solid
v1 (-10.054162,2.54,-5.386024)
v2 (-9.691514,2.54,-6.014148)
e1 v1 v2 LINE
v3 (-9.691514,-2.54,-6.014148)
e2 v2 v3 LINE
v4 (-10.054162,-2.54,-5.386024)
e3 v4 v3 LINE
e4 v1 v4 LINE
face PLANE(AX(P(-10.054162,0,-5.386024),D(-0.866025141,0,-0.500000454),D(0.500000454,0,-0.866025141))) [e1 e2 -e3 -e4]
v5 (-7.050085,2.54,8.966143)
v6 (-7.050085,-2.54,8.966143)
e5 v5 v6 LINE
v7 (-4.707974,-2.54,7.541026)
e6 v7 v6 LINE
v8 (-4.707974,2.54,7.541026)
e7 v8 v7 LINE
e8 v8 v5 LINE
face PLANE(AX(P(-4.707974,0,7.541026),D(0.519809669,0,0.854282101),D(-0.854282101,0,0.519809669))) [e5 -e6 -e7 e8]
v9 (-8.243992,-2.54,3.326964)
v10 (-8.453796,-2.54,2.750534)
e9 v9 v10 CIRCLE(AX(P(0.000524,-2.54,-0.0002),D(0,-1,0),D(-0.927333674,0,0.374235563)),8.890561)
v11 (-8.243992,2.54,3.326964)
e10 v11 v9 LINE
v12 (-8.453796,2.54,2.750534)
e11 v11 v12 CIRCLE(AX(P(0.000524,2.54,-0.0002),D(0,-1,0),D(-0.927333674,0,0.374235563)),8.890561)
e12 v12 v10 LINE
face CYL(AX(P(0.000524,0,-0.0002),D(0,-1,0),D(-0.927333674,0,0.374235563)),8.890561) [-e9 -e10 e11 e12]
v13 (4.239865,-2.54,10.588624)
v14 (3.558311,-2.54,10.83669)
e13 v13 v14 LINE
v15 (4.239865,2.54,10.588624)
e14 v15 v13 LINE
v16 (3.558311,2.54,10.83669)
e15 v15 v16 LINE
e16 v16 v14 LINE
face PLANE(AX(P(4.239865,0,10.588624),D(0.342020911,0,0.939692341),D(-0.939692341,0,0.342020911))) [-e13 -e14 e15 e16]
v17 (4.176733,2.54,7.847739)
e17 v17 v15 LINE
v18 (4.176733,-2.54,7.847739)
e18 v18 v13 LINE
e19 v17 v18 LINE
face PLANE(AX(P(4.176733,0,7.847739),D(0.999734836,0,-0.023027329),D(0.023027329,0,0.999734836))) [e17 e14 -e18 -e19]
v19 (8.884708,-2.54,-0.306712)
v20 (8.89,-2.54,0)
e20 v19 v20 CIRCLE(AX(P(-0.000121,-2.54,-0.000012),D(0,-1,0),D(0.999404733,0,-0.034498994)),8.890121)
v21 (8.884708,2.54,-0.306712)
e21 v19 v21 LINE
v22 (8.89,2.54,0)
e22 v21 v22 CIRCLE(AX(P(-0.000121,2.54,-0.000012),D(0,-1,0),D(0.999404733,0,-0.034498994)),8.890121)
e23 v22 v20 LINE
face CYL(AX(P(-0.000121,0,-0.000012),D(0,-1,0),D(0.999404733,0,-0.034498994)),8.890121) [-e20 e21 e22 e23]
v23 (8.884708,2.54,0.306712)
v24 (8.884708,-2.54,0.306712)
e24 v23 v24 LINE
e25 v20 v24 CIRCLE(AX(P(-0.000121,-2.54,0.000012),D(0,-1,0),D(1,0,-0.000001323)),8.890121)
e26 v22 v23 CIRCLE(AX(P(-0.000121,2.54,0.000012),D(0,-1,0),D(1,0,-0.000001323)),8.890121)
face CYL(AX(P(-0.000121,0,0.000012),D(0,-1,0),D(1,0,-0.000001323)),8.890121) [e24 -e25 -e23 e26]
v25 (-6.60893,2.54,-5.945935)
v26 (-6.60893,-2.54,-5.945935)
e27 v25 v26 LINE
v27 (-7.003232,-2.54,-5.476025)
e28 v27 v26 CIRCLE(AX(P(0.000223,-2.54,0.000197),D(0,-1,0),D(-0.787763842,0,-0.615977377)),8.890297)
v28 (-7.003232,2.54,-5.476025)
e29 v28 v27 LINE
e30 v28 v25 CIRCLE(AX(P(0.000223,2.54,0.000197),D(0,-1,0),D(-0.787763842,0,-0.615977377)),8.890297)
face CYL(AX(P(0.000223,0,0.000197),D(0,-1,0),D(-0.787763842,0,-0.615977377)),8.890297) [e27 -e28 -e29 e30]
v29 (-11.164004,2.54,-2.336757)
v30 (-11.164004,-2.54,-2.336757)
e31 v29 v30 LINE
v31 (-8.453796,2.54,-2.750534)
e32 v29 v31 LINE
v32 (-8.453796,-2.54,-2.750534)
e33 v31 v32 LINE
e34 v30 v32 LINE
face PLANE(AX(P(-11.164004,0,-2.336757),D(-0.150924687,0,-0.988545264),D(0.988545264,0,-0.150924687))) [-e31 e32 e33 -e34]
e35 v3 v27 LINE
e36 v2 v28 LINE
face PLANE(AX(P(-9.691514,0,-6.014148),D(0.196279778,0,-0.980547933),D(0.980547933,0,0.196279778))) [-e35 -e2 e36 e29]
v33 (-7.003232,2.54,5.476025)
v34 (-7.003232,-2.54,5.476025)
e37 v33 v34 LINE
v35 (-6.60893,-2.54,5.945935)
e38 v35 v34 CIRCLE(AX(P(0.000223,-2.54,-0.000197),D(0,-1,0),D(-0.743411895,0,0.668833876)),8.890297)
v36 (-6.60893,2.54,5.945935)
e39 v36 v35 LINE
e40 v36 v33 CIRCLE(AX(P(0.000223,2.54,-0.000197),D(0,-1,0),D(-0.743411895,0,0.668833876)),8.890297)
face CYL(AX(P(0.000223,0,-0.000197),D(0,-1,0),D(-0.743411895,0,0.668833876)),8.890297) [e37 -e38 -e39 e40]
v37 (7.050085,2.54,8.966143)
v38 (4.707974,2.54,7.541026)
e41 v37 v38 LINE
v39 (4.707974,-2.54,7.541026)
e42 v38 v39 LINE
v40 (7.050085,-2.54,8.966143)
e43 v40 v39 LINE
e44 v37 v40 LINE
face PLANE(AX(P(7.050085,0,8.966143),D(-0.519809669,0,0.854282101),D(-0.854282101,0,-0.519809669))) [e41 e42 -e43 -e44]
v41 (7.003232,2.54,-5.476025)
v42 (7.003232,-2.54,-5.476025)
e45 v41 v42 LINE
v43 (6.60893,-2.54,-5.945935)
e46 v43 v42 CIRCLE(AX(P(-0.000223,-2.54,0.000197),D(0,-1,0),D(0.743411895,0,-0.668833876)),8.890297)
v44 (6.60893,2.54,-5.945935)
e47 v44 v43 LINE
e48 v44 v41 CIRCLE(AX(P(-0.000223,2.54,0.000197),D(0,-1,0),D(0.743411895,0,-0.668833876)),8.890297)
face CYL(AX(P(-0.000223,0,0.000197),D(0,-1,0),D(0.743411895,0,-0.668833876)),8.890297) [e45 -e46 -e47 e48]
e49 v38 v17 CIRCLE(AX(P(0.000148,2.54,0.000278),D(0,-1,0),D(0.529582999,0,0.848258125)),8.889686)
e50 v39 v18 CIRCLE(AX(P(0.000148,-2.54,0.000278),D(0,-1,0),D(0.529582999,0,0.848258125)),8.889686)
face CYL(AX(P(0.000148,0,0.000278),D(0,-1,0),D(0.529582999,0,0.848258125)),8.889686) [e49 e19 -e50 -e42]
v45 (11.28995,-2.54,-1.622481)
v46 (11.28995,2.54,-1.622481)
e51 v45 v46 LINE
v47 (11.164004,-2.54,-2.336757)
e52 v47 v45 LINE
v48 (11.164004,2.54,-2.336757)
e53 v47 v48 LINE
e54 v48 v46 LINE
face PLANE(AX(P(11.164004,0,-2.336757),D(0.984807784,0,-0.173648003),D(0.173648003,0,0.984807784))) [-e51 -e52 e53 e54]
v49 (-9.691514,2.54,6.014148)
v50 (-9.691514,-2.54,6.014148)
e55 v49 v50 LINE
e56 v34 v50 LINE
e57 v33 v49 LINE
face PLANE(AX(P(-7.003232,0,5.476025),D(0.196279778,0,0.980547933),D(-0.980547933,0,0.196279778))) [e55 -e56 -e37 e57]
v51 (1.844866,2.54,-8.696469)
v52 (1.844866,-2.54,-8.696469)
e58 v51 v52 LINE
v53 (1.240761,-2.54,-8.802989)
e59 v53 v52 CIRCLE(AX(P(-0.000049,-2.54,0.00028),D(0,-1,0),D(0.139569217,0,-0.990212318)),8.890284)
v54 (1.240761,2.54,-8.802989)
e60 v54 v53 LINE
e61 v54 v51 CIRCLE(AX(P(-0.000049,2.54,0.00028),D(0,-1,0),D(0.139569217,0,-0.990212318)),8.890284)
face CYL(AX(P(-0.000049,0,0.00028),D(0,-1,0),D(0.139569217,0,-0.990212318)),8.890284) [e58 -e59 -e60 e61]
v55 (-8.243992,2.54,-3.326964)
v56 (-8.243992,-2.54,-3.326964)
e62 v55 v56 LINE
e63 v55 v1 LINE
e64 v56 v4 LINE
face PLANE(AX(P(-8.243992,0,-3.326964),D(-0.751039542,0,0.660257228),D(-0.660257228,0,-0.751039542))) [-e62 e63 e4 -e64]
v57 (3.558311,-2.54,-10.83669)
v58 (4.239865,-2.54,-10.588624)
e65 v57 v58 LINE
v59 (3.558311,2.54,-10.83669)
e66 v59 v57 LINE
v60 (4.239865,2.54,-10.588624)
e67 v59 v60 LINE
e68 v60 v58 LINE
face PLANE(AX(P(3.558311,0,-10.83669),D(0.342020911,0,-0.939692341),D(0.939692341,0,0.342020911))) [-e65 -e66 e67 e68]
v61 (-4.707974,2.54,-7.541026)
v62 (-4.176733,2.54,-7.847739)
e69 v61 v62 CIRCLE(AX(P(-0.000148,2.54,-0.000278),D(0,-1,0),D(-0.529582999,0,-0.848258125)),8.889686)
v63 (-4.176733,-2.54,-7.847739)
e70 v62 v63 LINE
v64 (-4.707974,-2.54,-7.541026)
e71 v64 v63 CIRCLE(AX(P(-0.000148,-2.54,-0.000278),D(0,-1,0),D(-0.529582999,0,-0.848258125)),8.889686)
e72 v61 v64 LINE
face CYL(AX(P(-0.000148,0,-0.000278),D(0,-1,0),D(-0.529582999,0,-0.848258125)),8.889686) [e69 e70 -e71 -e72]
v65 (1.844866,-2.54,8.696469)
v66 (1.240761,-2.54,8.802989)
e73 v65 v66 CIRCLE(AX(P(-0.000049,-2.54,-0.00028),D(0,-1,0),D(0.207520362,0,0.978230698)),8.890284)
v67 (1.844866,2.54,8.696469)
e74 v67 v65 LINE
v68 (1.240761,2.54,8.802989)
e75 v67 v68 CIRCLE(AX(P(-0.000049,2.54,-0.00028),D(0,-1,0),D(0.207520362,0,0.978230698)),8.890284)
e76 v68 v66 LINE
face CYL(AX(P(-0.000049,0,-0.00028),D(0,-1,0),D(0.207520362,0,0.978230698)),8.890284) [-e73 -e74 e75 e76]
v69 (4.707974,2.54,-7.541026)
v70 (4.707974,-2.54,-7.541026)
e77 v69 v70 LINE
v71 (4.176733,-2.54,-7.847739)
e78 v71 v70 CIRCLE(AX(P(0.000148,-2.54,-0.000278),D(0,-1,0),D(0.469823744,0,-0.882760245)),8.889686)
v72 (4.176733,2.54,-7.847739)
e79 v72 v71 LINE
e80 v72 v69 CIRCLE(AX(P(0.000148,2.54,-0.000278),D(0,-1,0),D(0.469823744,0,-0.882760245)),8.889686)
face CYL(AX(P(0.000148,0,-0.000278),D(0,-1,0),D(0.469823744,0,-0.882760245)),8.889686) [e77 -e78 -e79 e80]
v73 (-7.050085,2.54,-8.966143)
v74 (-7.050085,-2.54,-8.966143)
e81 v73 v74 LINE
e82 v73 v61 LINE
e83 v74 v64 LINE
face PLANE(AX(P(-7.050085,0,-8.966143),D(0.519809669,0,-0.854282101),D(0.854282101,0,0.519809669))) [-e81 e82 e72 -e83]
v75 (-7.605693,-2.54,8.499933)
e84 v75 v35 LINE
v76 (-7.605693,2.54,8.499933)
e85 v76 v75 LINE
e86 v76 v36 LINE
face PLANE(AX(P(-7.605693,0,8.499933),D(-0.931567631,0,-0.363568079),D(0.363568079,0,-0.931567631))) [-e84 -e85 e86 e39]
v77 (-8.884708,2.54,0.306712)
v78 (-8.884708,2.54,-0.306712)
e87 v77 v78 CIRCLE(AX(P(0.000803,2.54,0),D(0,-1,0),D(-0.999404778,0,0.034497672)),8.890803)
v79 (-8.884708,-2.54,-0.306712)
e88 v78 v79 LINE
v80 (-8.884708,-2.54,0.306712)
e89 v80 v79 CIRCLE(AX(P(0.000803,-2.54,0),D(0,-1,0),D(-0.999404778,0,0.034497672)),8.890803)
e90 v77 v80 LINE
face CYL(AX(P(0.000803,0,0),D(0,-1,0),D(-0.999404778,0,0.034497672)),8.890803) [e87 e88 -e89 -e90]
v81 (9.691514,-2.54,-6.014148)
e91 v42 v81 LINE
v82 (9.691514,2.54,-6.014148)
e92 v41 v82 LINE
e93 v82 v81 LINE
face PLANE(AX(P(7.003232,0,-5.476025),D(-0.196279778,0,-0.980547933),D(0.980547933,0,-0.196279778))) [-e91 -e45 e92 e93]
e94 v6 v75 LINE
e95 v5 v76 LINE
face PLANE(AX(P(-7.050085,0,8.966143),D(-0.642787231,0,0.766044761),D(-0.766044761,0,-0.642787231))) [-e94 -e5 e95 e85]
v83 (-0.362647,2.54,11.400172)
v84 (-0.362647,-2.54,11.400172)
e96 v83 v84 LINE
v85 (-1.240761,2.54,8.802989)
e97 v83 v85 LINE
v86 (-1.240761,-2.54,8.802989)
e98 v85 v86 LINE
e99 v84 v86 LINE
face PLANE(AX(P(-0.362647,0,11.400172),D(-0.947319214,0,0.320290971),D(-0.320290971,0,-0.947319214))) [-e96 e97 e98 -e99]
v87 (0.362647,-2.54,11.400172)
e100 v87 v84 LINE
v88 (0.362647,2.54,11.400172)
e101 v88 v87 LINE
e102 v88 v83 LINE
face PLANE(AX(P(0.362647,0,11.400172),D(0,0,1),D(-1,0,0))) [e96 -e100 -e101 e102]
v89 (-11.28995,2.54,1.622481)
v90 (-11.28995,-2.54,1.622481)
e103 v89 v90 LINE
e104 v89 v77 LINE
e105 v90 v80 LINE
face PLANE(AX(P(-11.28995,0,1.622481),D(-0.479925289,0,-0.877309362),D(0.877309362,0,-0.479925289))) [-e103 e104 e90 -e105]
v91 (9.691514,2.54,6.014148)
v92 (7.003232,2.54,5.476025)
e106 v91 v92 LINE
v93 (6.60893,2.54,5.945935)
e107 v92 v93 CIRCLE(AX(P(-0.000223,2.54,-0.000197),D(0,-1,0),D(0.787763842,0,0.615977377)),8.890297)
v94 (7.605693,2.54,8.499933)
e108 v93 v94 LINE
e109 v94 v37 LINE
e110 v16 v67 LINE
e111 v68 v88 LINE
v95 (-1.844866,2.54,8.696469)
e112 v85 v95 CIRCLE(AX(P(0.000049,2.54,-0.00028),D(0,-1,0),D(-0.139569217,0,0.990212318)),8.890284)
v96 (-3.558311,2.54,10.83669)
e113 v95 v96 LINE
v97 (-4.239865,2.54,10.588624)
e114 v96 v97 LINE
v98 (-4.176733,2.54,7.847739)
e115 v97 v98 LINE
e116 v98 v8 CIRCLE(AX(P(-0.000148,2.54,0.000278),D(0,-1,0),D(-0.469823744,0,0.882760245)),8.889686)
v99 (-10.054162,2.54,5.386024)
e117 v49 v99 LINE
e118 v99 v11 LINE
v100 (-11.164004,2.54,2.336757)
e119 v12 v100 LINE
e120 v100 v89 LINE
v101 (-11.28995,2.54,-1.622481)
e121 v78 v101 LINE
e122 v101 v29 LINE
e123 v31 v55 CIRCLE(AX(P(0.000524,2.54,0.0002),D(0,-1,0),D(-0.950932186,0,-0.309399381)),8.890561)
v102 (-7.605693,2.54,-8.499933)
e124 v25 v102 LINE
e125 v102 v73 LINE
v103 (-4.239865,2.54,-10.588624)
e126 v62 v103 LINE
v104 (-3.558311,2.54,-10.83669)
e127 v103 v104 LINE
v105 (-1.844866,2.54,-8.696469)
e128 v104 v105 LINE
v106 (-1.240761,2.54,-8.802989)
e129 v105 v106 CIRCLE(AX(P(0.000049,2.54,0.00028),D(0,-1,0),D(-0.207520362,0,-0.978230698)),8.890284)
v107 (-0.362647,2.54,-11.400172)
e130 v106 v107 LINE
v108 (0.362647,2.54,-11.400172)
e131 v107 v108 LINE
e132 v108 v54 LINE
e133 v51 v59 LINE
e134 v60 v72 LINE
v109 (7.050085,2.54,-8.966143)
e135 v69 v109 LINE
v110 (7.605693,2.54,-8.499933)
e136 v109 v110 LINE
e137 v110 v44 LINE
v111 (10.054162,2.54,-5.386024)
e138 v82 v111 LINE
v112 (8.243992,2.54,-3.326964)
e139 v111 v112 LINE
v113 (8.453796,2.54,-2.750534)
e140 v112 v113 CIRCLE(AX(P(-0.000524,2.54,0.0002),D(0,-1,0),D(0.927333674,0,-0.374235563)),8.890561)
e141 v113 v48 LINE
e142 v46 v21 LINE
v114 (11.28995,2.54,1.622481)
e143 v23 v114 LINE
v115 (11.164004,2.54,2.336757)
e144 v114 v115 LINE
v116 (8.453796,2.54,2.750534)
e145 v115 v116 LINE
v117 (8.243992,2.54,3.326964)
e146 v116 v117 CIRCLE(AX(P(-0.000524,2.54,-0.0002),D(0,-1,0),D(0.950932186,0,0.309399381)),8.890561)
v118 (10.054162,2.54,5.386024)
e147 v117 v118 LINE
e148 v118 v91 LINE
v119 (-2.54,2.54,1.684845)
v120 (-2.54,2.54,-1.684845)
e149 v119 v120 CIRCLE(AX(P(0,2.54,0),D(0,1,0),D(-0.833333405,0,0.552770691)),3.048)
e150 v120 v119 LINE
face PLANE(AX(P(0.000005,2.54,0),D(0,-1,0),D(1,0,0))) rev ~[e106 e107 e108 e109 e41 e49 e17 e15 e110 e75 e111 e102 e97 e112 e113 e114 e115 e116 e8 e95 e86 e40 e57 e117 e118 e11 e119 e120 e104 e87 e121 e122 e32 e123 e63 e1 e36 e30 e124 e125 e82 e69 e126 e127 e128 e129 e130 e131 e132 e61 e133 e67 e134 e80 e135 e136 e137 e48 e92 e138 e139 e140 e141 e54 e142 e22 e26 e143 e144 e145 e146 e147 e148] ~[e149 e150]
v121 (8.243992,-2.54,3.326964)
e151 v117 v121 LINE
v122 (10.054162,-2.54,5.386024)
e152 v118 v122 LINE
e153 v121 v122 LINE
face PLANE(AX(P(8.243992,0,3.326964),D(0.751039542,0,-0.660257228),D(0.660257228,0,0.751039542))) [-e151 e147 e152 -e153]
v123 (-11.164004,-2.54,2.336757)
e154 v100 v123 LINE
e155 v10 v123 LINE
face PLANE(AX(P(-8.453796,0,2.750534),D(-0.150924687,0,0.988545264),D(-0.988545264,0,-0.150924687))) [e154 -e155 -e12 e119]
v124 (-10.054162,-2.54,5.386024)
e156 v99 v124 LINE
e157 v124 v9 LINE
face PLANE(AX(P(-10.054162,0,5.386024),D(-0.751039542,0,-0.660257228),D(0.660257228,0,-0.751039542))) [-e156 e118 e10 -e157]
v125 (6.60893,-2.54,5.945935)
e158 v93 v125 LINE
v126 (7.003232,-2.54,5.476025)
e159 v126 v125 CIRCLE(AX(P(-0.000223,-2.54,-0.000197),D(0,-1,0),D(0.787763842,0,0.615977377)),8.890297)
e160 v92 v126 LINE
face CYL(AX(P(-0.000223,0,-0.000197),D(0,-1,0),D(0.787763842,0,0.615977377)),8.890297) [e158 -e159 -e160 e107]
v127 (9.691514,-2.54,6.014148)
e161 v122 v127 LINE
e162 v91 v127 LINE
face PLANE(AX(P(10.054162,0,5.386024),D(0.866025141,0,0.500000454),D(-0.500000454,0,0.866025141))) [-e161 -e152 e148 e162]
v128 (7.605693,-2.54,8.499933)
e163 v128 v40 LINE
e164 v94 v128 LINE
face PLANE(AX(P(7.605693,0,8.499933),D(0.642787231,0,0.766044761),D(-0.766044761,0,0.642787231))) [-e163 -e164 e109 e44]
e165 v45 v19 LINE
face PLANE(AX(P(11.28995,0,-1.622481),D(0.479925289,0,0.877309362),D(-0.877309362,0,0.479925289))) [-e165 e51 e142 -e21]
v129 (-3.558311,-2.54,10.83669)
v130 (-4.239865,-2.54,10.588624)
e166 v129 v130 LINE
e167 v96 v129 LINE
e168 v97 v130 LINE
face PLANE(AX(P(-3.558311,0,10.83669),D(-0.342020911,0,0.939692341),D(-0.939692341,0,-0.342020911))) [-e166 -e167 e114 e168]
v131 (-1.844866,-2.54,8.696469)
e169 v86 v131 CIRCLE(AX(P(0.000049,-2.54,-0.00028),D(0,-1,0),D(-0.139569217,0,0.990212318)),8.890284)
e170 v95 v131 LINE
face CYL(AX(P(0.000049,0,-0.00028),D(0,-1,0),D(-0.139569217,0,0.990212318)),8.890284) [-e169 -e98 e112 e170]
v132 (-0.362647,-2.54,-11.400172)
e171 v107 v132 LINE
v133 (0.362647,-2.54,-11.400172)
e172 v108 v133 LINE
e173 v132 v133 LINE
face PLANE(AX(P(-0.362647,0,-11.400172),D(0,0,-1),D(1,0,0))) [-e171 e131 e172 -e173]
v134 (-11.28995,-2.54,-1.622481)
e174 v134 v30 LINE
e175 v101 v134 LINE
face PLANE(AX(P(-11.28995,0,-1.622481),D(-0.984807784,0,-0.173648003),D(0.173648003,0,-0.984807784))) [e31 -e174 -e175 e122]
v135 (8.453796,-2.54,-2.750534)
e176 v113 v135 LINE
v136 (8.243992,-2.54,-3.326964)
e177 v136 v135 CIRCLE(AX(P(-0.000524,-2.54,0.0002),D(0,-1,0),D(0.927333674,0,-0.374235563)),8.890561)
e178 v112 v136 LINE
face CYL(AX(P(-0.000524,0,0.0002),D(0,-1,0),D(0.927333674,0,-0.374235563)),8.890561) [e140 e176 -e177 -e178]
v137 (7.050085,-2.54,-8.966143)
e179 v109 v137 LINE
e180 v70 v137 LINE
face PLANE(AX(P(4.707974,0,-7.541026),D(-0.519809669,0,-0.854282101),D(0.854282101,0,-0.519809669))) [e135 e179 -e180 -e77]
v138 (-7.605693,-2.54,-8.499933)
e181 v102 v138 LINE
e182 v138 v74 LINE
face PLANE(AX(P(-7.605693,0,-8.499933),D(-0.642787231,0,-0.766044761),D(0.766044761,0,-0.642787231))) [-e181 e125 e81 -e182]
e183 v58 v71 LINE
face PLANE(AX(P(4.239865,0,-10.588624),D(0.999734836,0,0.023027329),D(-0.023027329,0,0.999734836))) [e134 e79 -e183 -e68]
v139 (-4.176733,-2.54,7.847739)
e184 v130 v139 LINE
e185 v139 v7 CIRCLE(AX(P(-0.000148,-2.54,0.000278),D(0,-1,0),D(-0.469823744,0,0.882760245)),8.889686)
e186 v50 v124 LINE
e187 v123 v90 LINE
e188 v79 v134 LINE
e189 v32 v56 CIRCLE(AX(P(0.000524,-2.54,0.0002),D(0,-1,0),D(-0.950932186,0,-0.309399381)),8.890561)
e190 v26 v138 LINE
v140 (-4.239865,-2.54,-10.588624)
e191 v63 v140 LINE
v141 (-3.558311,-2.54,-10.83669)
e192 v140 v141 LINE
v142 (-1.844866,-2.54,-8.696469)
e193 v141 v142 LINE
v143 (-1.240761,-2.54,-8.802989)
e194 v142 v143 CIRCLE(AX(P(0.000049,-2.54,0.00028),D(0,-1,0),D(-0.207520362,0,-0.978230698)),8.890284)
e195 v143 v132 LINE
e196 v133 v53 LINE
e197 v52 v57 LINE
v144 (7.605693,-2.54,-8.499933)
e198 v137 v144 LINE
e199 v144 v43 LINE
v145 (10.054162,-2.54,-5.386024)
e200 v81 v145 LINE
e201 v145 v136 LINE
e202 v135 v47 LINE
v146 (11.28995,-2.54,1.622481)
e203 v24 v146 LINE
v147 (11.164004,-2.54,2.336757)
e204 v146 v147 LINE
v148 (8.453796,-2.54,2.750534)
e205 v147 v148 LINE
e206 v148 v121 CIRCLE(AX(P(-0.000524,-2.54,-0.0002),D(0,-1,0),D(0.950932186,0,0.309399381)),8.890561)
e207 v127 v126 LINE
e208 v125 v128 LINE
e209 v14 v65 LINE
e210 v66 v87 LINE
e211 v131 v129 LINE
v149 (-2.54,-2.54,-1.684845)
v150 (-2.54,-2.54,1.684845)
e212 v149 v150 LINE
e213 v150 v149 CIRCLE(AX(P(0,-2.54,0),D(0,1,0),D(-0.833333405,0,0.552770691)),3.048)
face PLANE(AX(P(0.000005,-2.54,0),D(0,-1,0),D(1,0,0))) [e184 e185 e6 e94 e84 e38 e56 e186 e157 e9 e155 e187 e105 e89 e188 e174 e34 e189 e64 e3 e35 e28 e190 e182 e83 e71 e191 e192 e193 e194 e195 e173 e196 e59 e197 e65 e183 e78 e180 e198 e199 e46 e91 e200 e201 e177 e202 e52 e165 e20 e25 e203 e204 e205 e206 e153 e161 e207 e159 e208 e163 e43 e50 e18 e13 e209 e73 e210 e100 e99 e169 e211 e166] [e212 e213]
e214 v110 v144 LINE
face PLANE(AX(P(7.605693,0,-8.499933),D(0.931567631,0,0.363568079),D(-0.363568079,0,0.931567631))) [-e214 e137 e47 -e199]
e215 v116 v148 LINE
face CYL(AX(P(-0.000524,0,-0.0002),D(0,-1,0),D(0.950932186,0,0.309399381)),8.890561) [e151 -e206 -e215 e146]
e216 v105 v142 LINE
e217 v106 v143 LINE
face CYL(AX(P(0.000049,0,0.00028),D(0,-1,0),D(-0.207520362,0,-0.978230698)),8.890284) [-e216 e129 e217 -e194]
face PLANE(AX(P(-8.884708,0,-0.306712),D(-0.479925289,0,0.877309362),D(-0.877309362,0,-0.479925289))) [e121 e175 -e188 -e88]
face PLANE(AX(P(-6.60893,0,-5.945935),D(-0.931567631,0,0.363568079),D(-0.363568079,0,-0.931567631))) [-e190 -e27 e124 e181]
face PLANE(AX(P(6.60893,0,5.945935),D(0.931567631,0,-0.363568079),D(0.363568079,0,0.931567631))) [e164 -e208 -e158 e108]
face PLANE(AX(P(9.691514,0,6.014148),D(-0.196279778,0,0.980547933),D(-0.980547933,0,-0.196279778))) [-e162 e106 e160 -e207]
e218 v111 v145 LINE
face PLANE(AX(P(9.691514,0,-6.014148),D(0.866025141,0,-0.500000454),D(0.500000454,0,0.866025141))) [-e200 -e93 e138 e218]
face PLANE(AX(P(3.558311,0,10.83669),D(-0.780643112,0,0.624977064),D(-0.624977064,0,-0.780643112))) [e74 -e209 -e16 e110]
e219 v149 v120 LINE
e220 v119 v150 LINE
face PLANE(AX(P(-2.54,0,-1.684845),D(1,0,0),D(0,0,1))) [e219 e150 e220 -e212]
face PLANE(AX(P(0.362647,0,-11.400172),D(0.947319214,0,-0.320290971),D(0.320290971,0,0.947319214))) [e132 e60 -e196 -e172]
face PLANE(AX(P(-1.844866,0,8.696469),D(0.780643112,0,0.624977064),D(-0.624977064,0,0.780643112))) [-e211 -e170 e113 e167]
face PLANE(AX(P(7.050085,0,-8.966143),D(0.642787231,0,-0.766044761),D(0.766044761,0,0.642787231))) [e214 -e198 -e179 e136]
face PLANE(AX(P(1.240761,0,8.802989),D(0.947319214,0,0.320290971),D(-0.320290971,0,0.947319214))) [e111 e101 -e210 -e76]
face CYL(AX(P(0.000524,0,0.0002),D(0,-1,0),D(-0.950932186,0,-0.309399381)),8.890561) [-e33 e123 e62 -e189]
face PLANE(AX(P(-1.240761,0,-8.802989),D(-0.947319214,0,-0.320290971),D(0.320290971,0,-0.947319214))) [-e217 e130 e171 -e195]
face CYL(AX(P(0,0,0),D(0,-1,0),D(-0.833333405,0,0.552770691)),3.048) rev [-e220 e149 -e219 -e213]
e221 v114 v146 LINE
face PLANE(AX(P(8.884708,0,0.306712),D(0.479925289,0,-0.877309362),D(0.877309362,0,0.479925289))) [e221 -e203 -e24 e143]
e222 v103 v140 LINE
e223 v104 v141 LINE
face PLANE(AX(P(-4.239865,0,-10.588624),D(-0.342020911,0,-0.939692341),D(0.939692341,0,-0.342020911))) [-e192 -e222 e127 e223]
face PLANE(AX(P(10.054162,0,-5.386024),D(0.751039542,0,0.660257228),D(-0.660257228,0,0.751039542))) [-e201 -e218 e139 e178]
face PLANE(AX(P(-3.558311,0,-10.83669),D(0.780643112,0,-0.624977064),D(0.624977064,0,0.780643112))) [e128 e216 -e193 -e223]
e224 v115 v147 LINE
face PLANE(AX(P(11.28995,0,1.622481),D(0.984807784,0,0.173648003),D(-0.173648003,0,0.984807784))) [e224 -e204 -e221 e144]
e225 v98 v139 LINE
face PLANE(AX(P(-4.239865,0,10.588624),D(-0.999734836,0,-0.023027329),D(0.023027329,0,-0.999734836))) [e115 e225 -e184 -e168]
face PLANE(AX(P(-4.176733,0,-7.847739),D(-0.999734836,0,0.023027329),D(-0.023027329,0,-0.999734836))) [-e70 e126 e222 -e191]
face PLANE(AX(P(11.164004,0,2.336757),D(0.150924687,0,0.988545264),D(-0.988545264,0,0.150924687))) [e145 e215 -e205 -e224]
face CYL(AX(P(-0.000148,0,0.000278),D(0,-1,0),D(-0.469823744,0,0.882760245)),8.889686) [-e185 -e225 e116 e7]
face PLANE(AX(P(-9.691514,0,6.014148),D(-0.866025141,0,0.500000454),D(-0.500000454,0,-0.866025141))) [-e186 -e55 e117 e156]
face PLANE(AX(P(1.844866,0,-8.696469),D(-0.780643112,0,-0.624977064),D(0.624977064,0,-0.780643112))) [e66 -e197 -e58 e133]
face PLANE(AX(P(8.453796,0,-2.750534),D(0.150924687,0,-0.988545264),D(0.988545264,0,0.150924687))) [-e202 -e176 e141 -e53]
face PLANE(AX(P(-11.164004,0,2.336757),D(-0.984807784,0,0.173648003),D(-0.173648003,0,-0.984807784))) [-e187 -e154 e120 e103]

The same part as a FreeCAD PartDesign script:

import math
import FreeCAD as App
import Part
import Sketcher
Q = App.Units.Quantity

doc = App.newDocument("Part")
body = doc.addObject("PartDesign::Body", "Body")

sketch1 = body.newObject("Sketcher::SketchObject", "Sketch")
sketch1.AttachmentSupport = (doc.getObject("XZ_Plane"), [""])
sketch1.MapMode = "FlatFace"
sketch1.addGeometry(Part.ArcOfCircle(Part.Circle(App.Vector(-0.000121, -0.000012, 0), App.Vector(0, 0, 1), 8.890121), math.radians(-1.977039), math.radians(0.000076)), False)
sketch1.addGeometry(Part.ArcOfCircle(Part.Circle(App.Vector(-0.000121, 0.000012, 0), App.Vector(0, 0, 1), 8.890121), math.radians(-0.000076), math.radians(1.977039)), False)
sketch1.addGeometry(Part.LineSegment(App.Vector(8.884708, 0.306712, 0), App.Vector(11.28995, 1.622481, 0)), False)
sketch1.addGeometry(Part.LineSegment(App.Vector(11.28995, 1.622481, 0), App.Vector(11.164004, 2.336757, 0)), False)
sketch1.addGeometry(Part.LineSegment(App.Vector(11.164004, 2.336757, 0), App.Vector(8.453796, 2.750534, 0)), False)
sketch1.addGeometry(Part.ArcOfCircle(Part.Circle(App.Vector(-0.000524, -0.0002, 0), App.Vector(0, 0, 1), 8.890561), math.radians(18.023038), math.radians(21.977074)), False)
sketch1.addGeometry(Part.LineSegment(App.Vector(8.243992, 3.326964, 0), App.Vector(10.054162, 5.386024, 0)), False)
sketch1.addGeometry(Part.LineSegment(App.Vector(10.054162, 5.386024, 0), App.Vector(9.691514, 6.014148, 0)), False)
sketch1.addGeometry(Part.LineSegment(App.Vector(9.691514, 6.014148, 0), App.Vector(7.003232, 5.476025, 0)), False)
sketch1.addGeometry(Part.ArcOfCircle(Part.Circle(App.Vector(-0.000223, -0.000197, 0), App.Vector(0, 0, 1), 8.890297), math.radians(38.022973), math.radians(41.977126)), False)
sketch1.addGeometry(Part.LineSegment(App.Vector(6.60893, 5.945935, 0), App.Vector(7.605693, 8.499933, 0)), False)
sketch1.addGeometry(Part.LineSegment(App.Vector(7.605693, 8.499933, 0), App.Vector(7.050085, 8.966143, 0)), False)
sketch1.addGeometry(Part.LineSegment(App.Vector(7.050085, 8.966143, 0), App.Vector(4.707974, 7.541026, 0)), False)
sketch1.addGeometry(Part.ArcOfCircle(Part.Circle(App.Vector(0.000148, 0.000278, 0), App.Vector(0, 0, 1), 8.889686), math.radians(58.022716), math.radians(61.977144)), False)
sketch1.addGeometry(Part.LineSegment(App.Vector(4.176733, 7.847739, 0), App.Vector(4.239865, 10.588624, 0)), False)
sketch1.addGeometry(Part.LineSegment(App.Vector(4.239865, 10.588624, 0), App.Vector(3.558311, 10.83669, 0)), False)
sketch1.addGeometry(Part.LineSegment(App.Vector(3.558311, 10.83669, 0), App.Vector(1.844866, 8.696469, 0)), False)
sketch1.addGeometry(Part.ArcOfCircle(Part.Circle(App.Vector(-0.000049, -0.00028, 0), App.Vector(0, 0, 1), 8.890284), math.radians(78.022921), math.radians(81.977081)), False)
sketch1.addGeometry(Part.LineSegment(App.Vector(1.240761, 8.802989, 0), App.Vector(0.362647, 11.400172, 0)), False)
sketch1.addGeometry(Part.LineSegment(App.Vector(0.362647, 11.400172, 0), App.Vector(-0.362647, 11.400172, 0)), False)
sketch1.addGeometry(Part.LineSegment(App.Vector(-0.362647, 11.400172, 0), App.Vector(-1.240761, 8.802989, 0)), False)
sketch1.addGeometry(Part.ArcOfCircle(Part.Circle(App.Vector(0.000049, -0.00028, 0), App.Vector(0, 0, 1), 8.890284), math.radians(98.022919), math.radians(101.977079)), False)
sketch1.addGeometry(Part.LineSegment(App.Vector(-1.844866, 8.696469, 0), App.Vector(-3.558311, 10.83669, 0)), False)
sketch1.addGeometry(Part.LineSegment(App.Vector(-3.558311, 10.83669, 0), App.Vector(-4.239865, 10.588624, 0)), False)
sketch1.addGeometry(Part.LineSegment(App.Vector(-4.239865, 10.588624, 0), App.Vector(-4.176733, 7.847739, 0)), False)
sketch1.addGeometry(Part.ArcOfCircle(Part.Circle(App.Vector(-0.000148, 0.000278, 0), App.Vector(0, 0, 1), 8.889686), math.radians(118.022856), math.radians(121.977284)), False)
sketch1.addGeometry(Part.LineSegment(App.Vector(-4.707974, 7.541026, 0), App.Vector(-7.050085, 8.966143, 0)), False)
sketch1.addGeometry(Part.LineSegment(App.Vector(-7.050085, 8.966143, 0), App.Vector(-7.605693, 8.499933, 0)), False)
sketch1.addGeometry(Part.LineSegment(App.Vector(-7.605693, 8.499933, 0), App.Vector(-6.60893, 5.945935, 0)), False)
sketch1.addGeometry(Part.ArcOfCircle(Part.Circle(App.Vector(0.000223, -0.000197, 0), App.Vector(0, 0, 1), 8.890297), math.radians(138.022874), math.radians(141.977027)), False)
sketch1.addGeometry(Part.LineSegment(App.Vector(-7.003232, 5.476025, 0), App.Vector(-9.691514, 6.014148, 0)), False)
sketch1.addGeometry(Part.LineSegment(App.Vector(-9.691514, 6.014148, 0), App.Vector(-10.054162, 5.386024, 0)), False)
sketch1.addGeometry(Part.LineSegment(App.Vector(-10.054162, 5.386024, 0), App.Vector(-8.243992, 3.326964, 0)), False)
sketch1.addGeometry(Part.ArcOfCircle(Part.Circle(App.Vector(0.000524, -0.0002, 0), App.Vector(0, 0, 1), 8.890561), math.radians(158.022926), math.radians(161.976962)), False)
sketch1.addGeometry(Part.LineSegment(App.Vector(-8.453796, 2.750534, 0), App.Vector(-11.164004, 2.336757, 0)), False)
sketch1.addGeometry(Part.LineSegment(App.Vector(-11.164004, 2.336757, 0), App.Vector(-11.28995, 1.622481, 0)), False)
sketch1.addGeometry(Part.LineSegment(App.Vector(-11.28995, 1.622481, 0), App.Vector(-8.884708, 0.306712, 0)), False)
sketch1.addGeometry(Part.ArcOfCircle(Part.Circle(App.Vector(0.000803, 0, 0), App.Vector(0, 0, 1), 8.890803), math.radians(178.023037), math.radians(181.976963)), False)
sketch1.addGeometry(Part.LineSegment(App.Vector(-8.884708, -0.306712, 0), App.Vector(-11.28995, -1.622481, 0)), False)
sketch1.addGeometry(Part.LineSegment(App.Vector(-11.28995, -1.622481, 0), App.Vector(-11.164004, -2.336757, 0)), False)
sketch1.addGeometry(Part.LineSegment(App.Vector(-11.164004, -2.336757, 0), App.Vector(-8.453796, -2.750534, 0)), False)
sketch1.addGeometry(Part.ArcOfCircle(Part.Circle(App.Vector(0.000524, 0.0002, 0), App.Vector(0, 0, 1), 8.890561), math.radians(-161.976962), math.radians(-158.022926)), False)
sketch1.addGeometry(Part.LineSegment(App.Vector(-8.243992, -3.326964, 0), App.Vector(-10.054162, -5.386024, 0)), False)
sketch1.addGeometry(Part.LineSegment(App.Vector(-10.054162, -5.386024, 0), App.Vector(-9.691514, -6.014148, 0)), False)
sketch1.addGeometry(Part.LineSegment(App.Vector(-9.691514, -6.014148, 0), App.Vector(-7.003232, -5.476025, 0)), False)
sketch1.addGeometry(Part.ArcOfCircle(Part.Circle(App.Vector(0.000223, 0.000197, 0), App.Vector(0, 0, 1), 8.890297), math.radians(-141.977027), math.radians(-138.022874)), False)
sketch1.addGeometry(Part.LineSegment(App.Vector(-6.60893, -5.945935, 0), App.Vector(-7.605693, -8.499933, 0)), False)
sketch1.addGeometry(Part.LineSegment(App.Vector(-7.605693, -8.499933, 0), App.Vector(-7.050085, -8.966143, 0)), False)
sketch1.addGeometry(Part.LineSegment(App.Vector(-7.050085, -8.966143, 0), App.Vector(-4.707974, -7.541026, 0)), False)
sketch1.addGeometry(Part.ArcOfCircle(Part.Circle(App.Vector(-0.000148, -0.000278, 0), App.Vector(0, 0, 1), 8.889686), math.radians(-121.977284), math.radians(-118.022856)), False)
sketch1.addGeometry(Part.LineSegment(App.Vector(-4.176733, -7.847739, 0), App.Vector(-4.239865, -10.588624, 0)), False)
sketch1.addGeometry(Part.LineSegment(App.Vector(-4.239865, -10.588624, 0), App.Vector(-3.558311, -10.83669, 0)), False)
sketch1.addGeometry(Part.LineSegment(App.Vector(-3.558311, -10.83669, 0), App.Vector(-1.844866, -8.696469, 0)), False)
sketch1.addGeometry(Part.ArcOfCircle(Part.Circle(App.Vector(0.000049, 0.00028, 0), App.Vector(0, 0, 1), 8.890284), math.radians(-101.977079), math.radians(-98.022919)), False)
sketch1.addGeometry(Part.LineSegment(App.Vector(-1.240761, -8.802989, 0), App.Vector(-0.362647, -11.400172, 0)), False)
sketch1.addGeometry(Part.LineSegment(App.Vector(-0.362647, -11.400172, 0), App.Vector(0.362647, -11.400172, 0)), False)
sketch1.addGeometry(Part.LineSegment(App.Vector(0.362647, -11.400172, 0), App.Vector(1.240761, -8.802989, 0)), False)
sketch1.addGeometry(Part.ArcOfCircle(Part.Circle(App.Vector(-0.000049, 0.00028, 0), App.Vector(0, 0, 1), 8.890284), math.radians(-81.977081), math.radians(-78.022921)), False)
sketch1.addGeometry(Part.LineSegment(App.Vector(1.844866, -8.696469, 0), App.Vector(3.558311, -10.83669, 0)), False)
sketch1.addGeometry(Part.LineSegment(App.Vector(3.558311, -10.83669, 0), App.Vector(4.239865, -10.588624, 0)), False)
sketch1.addGeometry(Part.LineSegment(App.Vector(4.239865, -10.588624, 0), App.Vector(4.176733, -7.847739, 0)), False)
sketch1.addGeometry(Part.ArcOfCircle(Part.Circle(App.Vector(0.000148, -0.000278, 0), App.Vector(0, 0, 1), 8.889686), math.radians(-61.977144), math.radians(-58.022716)), False)
sketch1.addGeometry(Part.LineSegment(App.Vector(4.707974, -7.541026, 0), App.Vector(7.050085, -8.966143, 0)), False)
sketch1.addGeometry(Part.LineSegment(App.Vector(7.050085, -8.966143, 0), App.Vector(7.605693, -8.499933, 0)), False)
sketch1.addGeometry(Part.LineSegment(App.Vector(7.605693, -8.499933, 0), App.Vector(6.60893, -5.945935, 0)), False)
sketch1.addGeometry(Part.ArcOfCircle(Part.Circle(App.Vector(-0.000223, 0.000197, 0), App.Vector(0, 0, 1), 8.890297), math.radians(-41.977126), math.radians(-38.022973)), False)
sketch1.addGeometry(Part.LineSegment(App.Vector(7.003232, -5.476025, 0), App.Vector(9.691514, -6.014148, 0)), False)
sketch1.addGeometry(Part.LineSegment(App.Vector(9.691514, -6.014148, 0), App.Vector(10.054162, -5.386024, 0)), False)
sketch1.addGeometry(Part.LineSegment(App.Vector(10.054162, -5.386024, 0), App.Vector(8.243992, -3.326964, 0)), False)
sketch1.addGeometry(Part.ArcOfCircle(Part.Circle(App.Vector(-0.000524, 0.0002, 0), App.Vector(0, 0, 1), 8.890561), math.radians(-21.977074), math.radians(-18.023038)), False)
sketch1.addGeometry(Part.LineSegment(App.Vector(8.453796, -2.750534, 0), App.Vector(11.164004, -2.336757, 0)), False)
sketch1.addGeometry(Part.LineSegment(App.Vector(11.164004, -2.336757, 0), App.Vector(11.28995, -1.622481, 0)), False)
sketch1.addGeometry(Part.LineSegment(App.Vector(11.28995, -1.622481, 0), App.Vector(8.884708, -0.306712, 0)), False)
sketch1.addGeometry(Part.LineSegment(App.Vector(-2.54, -1.684845, 0), App.Vector(-2.54, 1.684845, 0)), False)
sketch1.addGeometry(Part.ArcOfCircle(Part.Circle(App.Vector(0, 0, 0), App.Vector(0, 0, 1), 3.048), math.radians(-146.442698), math.radians(146.442698)), False)
sketch1.addConstraint(Sketcher.Constraint("Coincident", 0, 2, 1, 1))
sketch1.addConstraint(Sketcher.Constraint("Coincident", 1, 2, 2, 1))
sketch1.addConstraint(Sketcher.Constraint("Coincident", 2, 2, 3, 1))
sketch1.addConstraint(Sketcher.Constraint("Coincident", 3, 2, 4, 1))
sketch1.addConstraint(Sketcher.Constraint("Coincident", 4, 2, 5, 1))
sketch1.addConstraint(Sketcher.Constraint("Coincident", 5, 2, 6, 1))
sketch1.addConstraint(Sketcher.Constraint("Coincident", 6, 2, 7, 1))
sketch1.addConstraint(Sketcher.Constraint("Coincident", 7, 2, 8, 1))
sketch1.addConstraint(Sketcher.Constraint("Coincident", 8, 2, 9, 1))
sketch1.addConstraint(Sketcher.Constraint("Coincident", 9, 2, 10, 1))
sketch1.addConstraint(Sketcher.Constraint("Coincident", 10, 2, 11, 1))
sketch1.addConstraint(Sketcher.Constraint("Coincident", 11, 2, 12, 1))
sketch1.addConstraint(Sketcher.Constraint("Coincident", 12, 2, 13, 1))
sketch1.addConstraint(Sketcher.Constraint("Coincident", 13, 2, 14, 1))
sketch1.addConstraint(Sketcher.Constraint("Coincident", 14, 2, 15, 1))
sketch1.addConstraint(Sketcher.Constraint("Coincident", 15, 2, 16, 1))
sketch1.addConstraint(Sketcher.Constraint("Coincident", 16, 2, 17, 1))
sketch1.addConstraint(Sketcher.Constraint("Coincident", 17, 2, 18, 1))
sketch1.addConstraint(Sketcher.Constraint("Coincident", 18, 2, 19, 1))
sketch1.addConstraint(Sketcher.Constraint("Coincident", 19, 2, 20, 1))
sketch1.addConstraint(Sketcher.Constraint("Coincident", 20, 2, 21, 1))
sketch1.addConstraint(Sketcher.Constraint("Coincident", 21, 2, 22, 1))
sketch1.addConstraint(Sketcher.Constraint("Coincident", 22, 2, 23, 1))
sketch1.addConstraint(Sketcher.Constraint("Coincident", 23, 2, 24, 1))
sketch1.addConstraint(Sketcher.Constraint("Coincident", 24, 2, 25, 1))
sketch1.addConstraint(Sketcher.Constraint("Coincident", 25, 2, 26, 1))
sketch1.addConstraint(Sketcher.Constraint("Coincident", 26, 2, 27, 1))
sketch1.addConstraint(Sketcher.Constraint("Coincident", 27, 2, 28, 1))
sketch1.addConstraint(Sketcher.Constraint("Coincident", 28, 2, 29, 1))
sketch1.addConstraint(Sketcher.Constraint("Coincident", 29, 2, 30, 1))
sketch1.addConstraint(Sketcher.Constraint("Coincident", 30, 2, 31, 1))
sketch1.addConstraint(Sketcher.Constraint("Coincident", 31, 2, 32, 1))
sketch1.addConstraint(Sketcher.Constraint("Coincident", 32, 2, 33, 1))
sketch1.addConstraint(Sketcher.Constraint("Coincident", 33, 2, 34, 1))
sketch1.addConstraint(Sketcher.Constraint("Coincident", 34, 2, 35, 1))
sketch1.addConstraint(Sketcher.Constraint("Coincident", 35, 2, 36, 1))
sketch1.addConstraint(Sketcher.Constraint("Coincident", 36, 2, 37, 1))
sketch1.addConstraint(Sketcher.Constraint("Coincident", 37, 2, 38, 1))
sketch1.addConstraint(Sketcher.Constraint("Coincident", 38, 2, 39, 1))
sketch1.addConstraint(Sketcher.Constraint("Coincident", 39, 2, 40, 1))
sketch1.addConstraint(Sketcher.Constraint("Coincident", 40, 2, 41, 1))
sketch1.addConstraint(Sketcher.Constraint("Coincident", 41, 2, 42, 1))
sketch1.addConstraint(Sketcher.Constraint("Coincident", 42, 2, 43, 1))
sketch1.addConstraint(Sketcher.Constraint("Coincident", 43, 2, 44, 1))
sketch1.addConstraint(Sketcher.Constraint("Coincident", 44, 2, 45, 1))
sketch1.addConstraint(Sketcher.Constraint("Coincident", 45, 2, 46, 1))
sketch1.addConstraint(Sketcher.Constraint("Coincident", 46, 2, 47, 1))
sketch1.addConstraint(Sketcher.Constraint("Coincident", 47, 2, 48, 1))
sketch1.addConstraint(Sketcher.Constraint("Coincident", 48, 2, 49, 1))
sketch1.addConstraint(Sketcher.Constraint("Coincident", 49, 2, 50, 1))
sketch1.addConstraint(Sketcher.Constraint("Coincident", 50, 2, 51, 1))
sketch1.addConstraint(Sketcher.Constraint("Coincident", 51, 2, 52, 1))
sketch1.addConstraint(Sketcher.Constraint("Coincident", 52, 2, 53, 1))
sketch1.addConstraint(Sketcher.Constraint("Coincident", 53, 2, 54, 1))
sketch1.addConstraint(Sketcher.Constraint("Coincident", 54, 2, 55, 1))
sketch1.addConstraint(Sketcher.Constraint("Coincident", 55, 2, 56, 1))
sketch1.addConstraint(Sketcher.Constraint("Coincident", 56, 2, 57, 1))
sketch1.addConstraint(Sketcher.Constraint("Coincident", 57, 2, 58, 1))
sketch1.addConstraint(Sketcher.Constraint("Coincident", 58, 2, 59, 1))
sketch1.addConstraint(Sketcher.Constraint("Coincident", 59, 2, 60, 1))
sketch1.addConstraint(Sketcher.Constraint("Coincident", 60, 2, 61, 1))
sketch1.addConstraint(Sketcher.Constraint("Coincident", 61, 2, 62, 1))
sketch1.addConstraint(Sketcher.Constraint("Coincident", 62, 2, 63, 1))
sketch1.addConstraint(Sketcher.Constraint("Coincident", 63, 2, 64, 1))
sketch1.addConstraint(Sketcher.Constraint("Coincident", 64, 2, 65, 1))
sketch1.addConstraint(Sketcher.Constraint("Coincident", 65, 2, 66, 1))
sketch1.addConstraint(Sketcher.Constraint("Coincident", 66, 2, 67, 1))
sketch1.addConstraint(Sketcher.Constraint("Coincident", 67, 2, 68, 1))
sketch1.addConstraint(Sketcher.Constraint("Coincident", 68, 2, 69, 1))
sketch1.addConstraint(Sketcher.Constraint("Coincident", 69, 2, 70, 1))
sketch1.addConstraint(Sketcher.Constraint("Coincident", 70, 2, 71, 1))
sketch1.addConstraint(Sketcher.Constraint("Coincident", 71, 2, 72, 1))
sketch1.addConstraint(Sketcher.Constraint("Coincident", 72, 2, 0, 1))
sketch1.addConstraint(Sketcher.Constraint("Coincident", 73, 1, 74, 1))
sketch1.addConstraint(Sketcher.Constraint("Coincident", 74, 2, 73, 2))
sketch1.addConstraint(Sketcher.Constraint("Horizontal", 19))
sketch1.addConstraint(Sketcher.Constraint("Horizontal", 55))
sketch1.addConstraint(Sketcher.Constraint("Vertical", 73))
sketch1.addConstraint(Sketcher.Constraint("Coincident", 74, 3, -1, 1))
sketch1.addConstraint(Sketcher.Constraint("Equal", 0, 1))
sketch1.addConstraint(Sketcher.Constraint("Equal", 17, 21))
sketch1.addConstraint(Sketcher.Constraint("Equal", 13, 25))
sketch1.addConstraint(Sketcher.Constraint("Equal", 9, 29))
sketch1.addConstraint(Sketcher.Constraint("Equal", 5, 33))
sketch1.addConstraint(Sketcher.Constraint("Equal", 33, 41))
sketch1.addConstraint(Sketcher.Constraint("Equal", 29, 45))
sketch1.addConstraint(Sketcher.Constraint("Equal", 25, 49))
sketch1.addConstraint(Sketcher.Constraint("Equal", 21, 53))
sketch1.addConstraint(Sketcher.Constraint("Equal", 53, 57))
sketch1.addConstraint(Sketcher.Constraint("Equal", 49, 61))
sketch1.addConstraint(Sketcher.Constraint("Equal", 45, 65))
sketch1.addConstraint(Sketcher.Constraint("Equal", 41, 69))
sketch1.addConstraint(Sketcher.Constraint("Symmetric", 5, 3, 41, 3, -1, 1))
sketch1.addConstraint(Sketcher.Constraint("Symmetric", 9, 3, 45, 3, -1, 1))
sketch1.addConstraint(Sketcher.Constraint("Symmetric", 13, 3, 49, 3, -1, 1))
sketch1.addConstraint(Sketcher.Constraint("Symmetric", 17, 3, 53, 3, -1, 1))
sketch1.addConstraint(Sketcher.Constraint("Symmetric", 21, 3, 57, 3, -1, 1))
sketch1.addConstraint(Sketcher.Constraint("Symmetric", 25, 3, 61, 3, -1, 1))
sketch1.addConstraint(Sketcher.Constraint("Symmetric", 29, 3, 65, 3, -1, 1))
sketch1.addConstraint(Sketcher.Constraint("Symmetric", 33, 3, 69, 3, -1, 1))
sketch1.addConstraint(Sketcher.Constraint("Symmetric", 1, 2, 37, 2, -1, 1))
sketch1.addConstraint(Sketcher.Constraint("Symmetric", 2, 2, 38, 2, -1, 1))
sketch1.addConstraint(Sketcher.Constraint("Symmetric", 3, 2, 39, 2, -1, 1))
sketch1.addConstraint(Sketcher.Constraint("Symmetric", 6, 2, 42, 2, -1, 1))
sketch1.addConstraint(Sketcher.Constraint("Symmetric", 7, 2, 43, 2, -1, 1))
sketch1.addConstraint(Sketcher.Constraint("Symmetric", 10, 2, 46, 2, -1, 1))
sketch1.addConstraint(Sketcher.Constraint("Symmetric", 11, 2, 47, 2, -1, 1))
sketch1.addConstraint(Sketcher.Constraint("Symmetric", 14, 2, 50, 2, -1, 1))
sketch1.addConstraint(Sketcher.Constraint("Symmetric", 15, 2, 51, 2, -1, 1))
sketch1.addConstraint(Sketcher.Constraint("Symmetric", 18, 2, 54, 2, -1, 1))
sketch1.addConstraint(Sketcher.Constraint("Symmetric", 22, 2, 58, 2, -1, 1))
sketch1.addConstraint(Sketcher.Constraint("Symmetric", 23, 2, 59, 2, -1, 1))
sketch1.addConstraint(Sketcher.Constraint("Symmetric", 26, 2, 62, 2, -1, 1))
sketch1.addConstraint(Sketcher.Constraint("Symmetric", 27, 2, 63, 2, -1, 1))
sketch1.addConstraint(Sketcher.Constraint("Symmetric", 30, 2, 66, 2, -1, 1))
sketch1.addConstraint(Sketcher.Constraint("Symmetric", 31, 2, 67, 2, -1, 1))
sketch1.addConstraint(Sketcher.Constraint("Symmetric", 34, 2, 70, 2, -1, 1))
sketch1.addConstraint(Sketcher.Constraint("Symmetric", 35, 2, 71, 2, -1, 1))
sketch1.addConstraint(Sketcher.Constraint("Symmetric", 36, 2, 72, 2, -1, 1))
sketch1.addConstraint(Sketcher.Constraint("Symmetric", 17, 3, 21, 3, -2))
sketch1.addConstraint(Sketcher.Constraint("Symmetric", 13, 3, 25, 3, -2))
sketch1.addConstraint(Sketcher.Constraint("Symmetric", 9, 3, 29, 3, -2))
sketch1.addConstraint(Sketcher.Constraint("Symmetric", 5, 3, 33, 3, -2))
sketch1.addConstraint(Sketcher.Constraint("Symmetric", 15, 2, 22, 2, -2))
sketch1.addConstraint(Sketcher.Constraint("Symmetric", 14, 2, 23, 2, -2))
sketch1.addConstraint(Sketcher.Constraint("Symmetric", 11, 2, 26, 2, -2))
sketch1.addConstraint(Sketcher.Constraint("Symmetric", 10, 2, 27, 2, -2))
sketch1.addConstraint(Sketcher.Constraint("Symmetric", 7, 2, 30, 2, -2))
sketch1.addConstraint(Sketcher.Constraint("Symmetric", 6, 2, 31, 2, -2))
sketch1.addConstraint(Sketcher.Constraint("Symmetric", 3, 2, 34, 2, -2))
sketch1.addConstraint(Sketcher.Constraint("Symmetric", 2, 2, 35, 2, -2))
sketch1.addConstraint(Sketcher.Constraint("Symmetric", 1, 2, 36, 2, -2))
sketch1.addConstraint(Sketcher.Constraint("PointOnObject", 0, 2, -1))
sketch1.addConstraint(Sketcher.Constraint("Parallel", 4, 40))
sketch1.addConstraint(Sketcher.Constraint("Parallel", 6, 42))
sketch1.addConstraint(Sketcher.Constraint("Parallel", 8, 44))
sketch1.addConstraint(Sketcher.Constraint("Parallel", 10, 46))
sketch1.addConstraint(Sketcher.Constraint("Parallel", 12, 48))
sketch1.addConstraint(Sketcher.Constraint("Parallel", 14, 50))
sketch1.addConstraint(Sketcher.Constraint("Parallel", 16, 52))
sketch1.addConstraint(Sketcher.Constraint("Parallel", 18, 54))
sketch1.addConstraint(Sketcher.Constraint("Parallel", 20, 56))
sketch1.addConstraint(Sketcher.Constraint("Parallel", 22, 58))
sketch1.addConstraint(Sketcher.Constraint("Parallel", 24, 60))
sketch1.addConstraint(Sketcher.Constraint("Parallel", 26, 62))
sketch1.addConstraint(Sketcher.Constraint("Parallel", 28, 64))
sketch1.addConstraint(Sketcher.Constraint("Parallel", 30, 66))
sketch1.addConstraint(Sketcher.Constraint("Parallel", 32, 68))
sketch1.addConstraint(Sketcher.Constraint("Parallel", 34, 70))
sketch1.addConstraint(Sketcher.Constraint("Horizontal", 17, 2, 20, 2))
sketch1.addConstraint(Sketcher.Constraint("Horizontal", 16, 2, 21, 2))
sketch1.addConstraint(Sketcher.Constraint("Horizontal", 13, 2, 24, 2))
sketch1.addConstraint(Sketcher.Constraint("Horizontal", 12, 2, 25, 2))
sketch1.addConstraint(Sketcher.Constraint("Horizontal", 9, 2, 28, 2))
sketch1.addConstraint(Sketcher.Constraint("Horizontal", 8, 2, 29, 2))
sketch1.addConstraint(Sketcher.Constraint("Horizontal", 5, 2, 32, 2))
sketch1.addConstraint(Sketcher.Constraint("Horizontal", 4, 2, 33, 2))
sketch1.addConstraint(Sketcher.Constraint("Horizontal", 53, 2, 56, 2))
sketch1.addConstraint(Sketcher.Constraint("Vertical", 19, 2, 54, 2))
sketch1.addConstraint(Sketcher.Constraint("Equal", 2, 4))
sketch1.addConstraint(Sketcher.Constraint("Equal", 4, 6))
sketch1.addConstraint(Sketcher.Constraint("Equal", 3, 7))
sketch1.addConstraint(Sketcher.Constraint("Equal", 6, 8))
sketch1.addConstraint(Sketcher.Constraint("Equal", 8, 10))
sketch1.addConstraint(Sketcher.Constraint("Equal", 7, 11))
sketch1.addConstraint(Sketcher.Constraint("Equal", 10, 12))
sketch1.addConstraint(Sketcher.Constraint("Equal", 12, 14))
sketch1.addConstraint(Sketcher.Constraint("Equal", 11, 15))
sketch1.addConstraint(Sketcher.Constraint("Equal", 14, 16))
sketch1.addConstraint(Sketcher.Constraint("Equal", 16, 18))
sketch1.addConstraint(Sketcher.Constraint("Radius", 74, Q("0.12 in")))
sketch1.addConstraint(Sketcher.Constraint("Angle", 3, Q("99.99999 deg")))
sketch1.addConstraint(Sketcher.Constraint("DistanceX", 73, 1, -1, 1, Q("0.1 in")))
sketch1.addConstraint(Sketcher.Constraint("DistanceX", -1, 1, 0, 2, Q("0.35 in")))
sketch1.addConstraint(Sketcher.Constraint("Radius", 0, 8.890121))
sketch1.addConstraint(Sketcher.Constraint("Radius", 5, 8.890561))
sketch1.addConstraint(Sketcher.Constraint("Radius", 9, 8.890297))
sketch1.addConstraint(Sketcher.Constraint("Radius", 13, 8.889686))
sketch1.addConstraint(Sketcher.Constraint("Radius", 17, 8.890284))
sketch1.addConstraint(Sketcher.Constraint("Radius", 37, 8.890803))
sketch1.addConstraint(Sketcher.Constraint("DistanceY", 5, 3, -1, 1, 0.0002))
sketch1.addConstraint(Sketcher.Constraint("Distance", 14, 2.741612))
sketch1.addConstraint(Sketcher.Constraint("DistanceX", 19, 2, 19, 1, 0.725294))
sketch1.addConstraint(Sketcher.Constraint("DistanceY", 17, 3, -1, 1, 0.00028))
sketch1.addConstraint(Sketcher.Constraint("DistanceY", -1, 1, 1, 2, 0.306712))
sketch1.addConstraint(Sketcher.Constraint("DistanceX", -1, 1, 2, 2, 11.28995))
sketch1.addConstraint(Sketcher.Constraint("DistanceY", -1, 1, 2, 2, 1.622481))
sketch1.addConstraint(Sketcher.Constraint("DistanceX", -1, 1, 8, 2, 7.003232))
sketch1.addConstraint(Sketcher.Constraint("DistanceX", -1, 1, 9, 2, 6.60893))
sketch1.addConstraint(Sketcher.Constraint("DistanceY", -1, 1, 13, 2, 7.847739))
sketch1.addConstraint(Sketcher.Constraint("DistanceX", -1, 1, 15, 2, 3.558311))
sketch1.addConstraint(Sketcher.Constraint("DistanceY", -1, 1, 15, 2, 10.83669))
sketch1.addConstraint(Sketcher.Constraint("DistanceY", -1, 1, 16, 2, 8.696469))
sketch1.addConstraint(Sketcher.Constraint("DistanceX", -1, 1, 17, 2, 1.240761))
sketch1.addConstraint(Sketcher.Constraint("Distance", 3, 0.725295))
sketch1.addConstraint(Sketcher.Constraint("DistanceX", 5, 3, -1, 1, 0.000524))
sketch1.addConstraint(Sketcher.Constraint("DistanceX", 9, 3, -1, 1, 0.000223))
sketch1.addConstraint(Sketcher.Constraint("DistanceY", 9, 3, -1, 1, 0.000197))
sketch1.addConstraint(Sketcher.Constraint("DistanceX", -1, 1, 13, 3, 0.000148))
sketch1.addConstraint(Sketcher.Constraint("DistanceY", -1, 1, 13, 3, 0.000278))
sketch1.addConstraint(Sketcher.Constraint("DistanceX", -1, 1, 5, 2, 8.243992))
sketch1.addConstraint(Sketcher.Constraint("DistanceX", -1, 1, 6, 2, 10.054162))
sketch1.addConstraint(Sketcher.Constraint("DistanceX", -1, 1, 10, 2, 7.605693))
sketch1.addConstraint(Sketcher.Constraint("DistanceX", -1, 1, 11, 2, 7.050085))
pad1 = body.newObject("PartDesign::Pad", "Pad")
pad1.Profile = sketch1
pad1.Length = Q("0.2 in")
pad1.Midplane = True

doc.recompute()
